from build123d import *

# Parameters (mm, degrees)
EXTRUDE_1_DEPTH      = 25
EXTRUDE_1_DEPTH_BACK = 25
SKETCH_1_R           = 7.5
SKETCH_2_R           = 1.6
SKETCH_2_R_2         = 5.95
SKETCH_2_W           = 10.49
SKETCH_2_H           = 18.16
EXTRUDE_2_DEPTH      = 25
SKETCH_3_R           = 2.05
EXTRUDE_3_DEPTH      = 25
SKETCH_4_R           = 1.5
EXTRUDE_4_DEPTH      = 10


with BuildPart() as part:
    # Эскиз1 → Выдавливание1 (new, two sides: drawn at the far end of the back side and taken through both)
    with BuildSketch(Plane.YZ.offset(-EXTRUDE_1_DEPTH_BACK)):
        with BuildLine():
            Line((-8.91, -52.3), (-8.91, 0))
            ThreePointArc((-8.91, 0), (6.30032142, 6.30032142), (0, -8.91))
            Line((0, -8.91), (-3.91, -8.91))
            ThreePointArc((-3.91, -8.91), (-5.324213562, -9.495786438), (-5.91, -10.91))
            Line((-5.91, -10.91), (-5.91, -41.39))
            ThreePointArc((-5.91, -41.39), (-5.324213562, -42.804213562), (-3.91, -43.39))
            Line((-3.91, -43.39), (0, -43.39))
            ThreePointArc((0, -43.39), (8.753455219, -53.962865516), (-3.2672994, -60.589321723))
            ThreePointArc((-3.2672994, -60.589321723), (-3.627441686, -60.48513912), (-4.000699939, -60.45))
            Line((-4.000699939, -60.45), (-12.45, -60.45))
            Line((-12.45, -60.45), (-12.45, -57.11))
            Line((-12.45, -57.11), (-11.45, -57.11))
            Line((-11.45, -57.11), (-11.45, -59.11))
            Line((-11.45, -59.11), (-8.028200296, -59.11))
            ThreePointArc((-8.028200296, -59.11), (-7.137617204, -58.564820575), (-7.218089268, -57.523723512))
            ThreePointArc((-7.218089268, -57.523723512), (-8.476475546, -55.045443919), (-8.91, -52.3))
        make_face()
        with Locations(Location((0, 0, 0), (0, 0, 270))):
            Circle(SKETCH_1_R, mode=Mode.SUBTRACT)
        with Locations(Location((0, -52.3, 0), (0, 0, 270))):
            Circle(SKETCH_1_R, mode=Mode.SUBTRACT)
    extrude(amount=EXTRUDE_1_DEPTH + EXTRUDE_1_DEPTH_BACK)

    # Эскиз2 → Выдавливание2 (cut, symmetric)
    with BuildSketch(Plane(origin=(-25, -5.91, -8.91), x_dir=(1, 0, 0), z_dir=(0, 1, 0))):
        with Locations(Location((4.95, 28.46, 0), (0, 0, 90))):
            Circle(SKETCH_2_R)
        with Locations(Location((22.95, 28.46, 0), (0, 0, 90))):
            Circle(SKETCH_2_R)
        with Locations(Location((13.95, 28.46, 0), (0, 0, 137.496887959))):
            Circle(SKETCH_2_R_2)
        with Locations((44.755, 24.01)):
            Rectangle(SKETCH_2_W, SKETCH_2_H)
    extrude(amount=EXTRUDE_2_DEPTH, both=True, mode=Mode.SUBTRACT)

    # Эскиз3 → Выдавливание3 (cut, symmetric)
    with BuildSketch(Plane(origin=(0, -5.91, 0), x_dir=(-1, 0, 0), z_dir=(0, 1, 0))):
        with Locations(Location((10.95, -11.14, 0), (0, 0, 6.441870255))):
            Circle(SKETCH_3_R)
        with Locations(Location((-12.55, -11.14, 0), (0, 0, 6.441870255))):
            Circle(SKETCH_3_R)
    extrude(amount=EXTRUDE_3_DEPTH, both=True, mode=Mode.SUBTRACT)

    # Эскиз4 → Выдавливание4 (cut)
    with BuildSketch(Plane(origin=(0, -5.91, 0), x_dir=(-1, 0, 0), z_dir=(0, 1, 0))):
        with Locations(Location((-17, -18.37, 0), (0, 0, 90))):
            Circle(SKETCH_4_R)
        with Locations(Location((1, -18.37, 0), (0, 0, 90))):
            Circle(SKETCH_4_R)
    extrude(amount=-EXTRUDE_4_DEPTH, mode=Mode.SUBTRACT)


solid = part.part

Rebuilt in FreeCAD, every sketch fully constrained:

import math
import FreeCAD as App
import Part
import Sketcher

doc = App.newDocument("Part")
params = doc.addObject("Spreadsheet::Sheet", "Params")
for row, (alias, value) in enumerate([
    ("sketch1_diameter", "15 mm"),
    ("sketch1_radius", "1 mm"),
    ("sketch1_radius2", "2 mm"),
    ("sketch1_width", "1 mm"),
    ("sketch1_height", "2 mm"),
    ("pad1_length", "25 mm"),
    ("pad1_length2", "25 mm"),
    ("sketch2_diameter", "3.2 mm"),
    ("sketch2_diameter2", "11.9 mm"),
    ("sketch2_width", "10.49 mm"),
    ("sketch2_height", "18.16 mm"),
    ("pocket1_length", "50 mm"),
    ("sketch3_diameter", "4.1 mm"),
    ("pocket2_length", "50 mm"),
    ("sketch4_diameter", "3 mm"),
    ("pocket3_length", "10 mm"),
], start=1):
    params.set(f"A{row}", alias)
    params.set(f"B{row}", "=" + value)
    params.setAlias(f"B{row}", alias)

body = doc.addObject("PartDesign::Body", "Body")

# Sketch on YZ plane
sketch1 = body.newObject("Sketcher::SketchObject", "Sketch")
sketch1.AttachmentSupport = (doc.getObject("YZ_Plane"), [""])
sketch1.MapMode = "FlatFace"
sketch1.addGeometry([
    Part.LineSegment(App.Vector(-8.9, 0, 0), App.Vector(-8.9, -52.3, 0)),  # 0
    Part.ArcOfCircle(Part.Circle(App.Vector(0, -52.3, 0), App.Vector(0, 0, 1), 8.9), math.radians(-180), math.radians(-144)),  # 1
    Part.ArcOfCircle(Part.Circle(App.Vector(-8, -58.1, 0), App.Vector(0, 0, 1), 1), math.radians(-90), math.radians(36)),  # 2
    Part.LineSegment(App.Vector(-8, -59.1, 0), App.Vector(-11.4, -59.1, 0)),  # 3
    Part.LineSegment(App.Vector(-11.4, -59.1, 0), App.Vector(-11.4, -57.1, 0)),  # 4
    Part.LineSegment(App.Vector(-11.4, -57.1, 0), App.Vector(-12.4, -57.1, 0)),  # 5
    Part.LineSegment(App.Vector(-12.4, -57.1, 0), App.Vector(-12.4, -60.5, 0)),  # 6
    Part.LineSegment(App.Vector(-12.4, -60.5, 0), App.Vector(-4, -60.5, 0)),  # 7
    Part.ArcOfCircle(Part.Circle(App.Vector(-4, -62.4, 0), App.Vector(0, 0, 1), 2), math.radians(68), math.radians(90)),  # 8
    Part.ArcOfCircle(Part.Circle(App.Vector(0, -52.3, 0), App.Vector(0, 0, 1), 8.9), math.radians(-112), math.radians(90)),  # 9
    Part.LineSegment(App.Vector(0, -43.4, 0), App.Vector(-3.9, -43.4, 0)),  # 10
    Part.ArcOfCircle(Part.Circle(App.Vector(-3.9, -41.4, 0), App.Vector(0, 0, 1), 2), math.radians(-180), math.radians(-90)),  # 11
    Part.LineSegment(App.Vector(-5.9, -41.4, 0), App.Vector(-5.9, -10.9, 0)),  # 12
    Part.ArcOfCircle(Part.Circle(App.Vector(-3.9, -10.9, 0), App.Vector(0, 0, 1), 2), math.radians(90), math.radians(180)),  # 13
    Part.LineSegment(App.Vector(-3.9, -8.9, 0), App.Vector(0, -8.9, 0)),  # 14
    Part.ArcOfCircle(Part.Circle(App.Vector(0, 0, 0), App.Vector(0, 0, 1), 8.9), math.radians(-90), math.radians(180)),  # 15
    Part.Circle(App.Vector(0, -52.3, 0), App.Vector(0, 0, 1), 7.5),  # 16
    Part.Circle(App.Vector(0, 0, 0), App.Vector(0, 0, 1), 7.5),  # 17
], False)
sketch1.addConstraint([
    Sketcher.Constraint("Tangent", 0, 2, 1, 1),
    Sketcher.Constraint("Tangent", 1, 2, 2, 2),
    Sketcher.Constraint("Tangent", 2, 1, 3, 1),
    Sketcher.Constraint("Coincident", 3, 2, 4, 1),
    Sketcher.Constraint("Coincident", 4, 2, 5, 1),
    Sketcher.Constraint("Coincident", 5, 2, 6, 1),
    Sketcher.Constraint("Coincident", 6, 2, 7, 1),
    Sketcher.Constraint("Tangent", 7, 2, 8, 2),
    Sketcher.Constraint("Tangent", 8, 1, 9, 1),
    Sketcher.Constraint("Tangent", 9, 2, 10, 1),
    Sketcher.Constraint("Tangent", 10, 2, 11, 2),
    Sketcher.Constraint("Tangent", 11, 1, 12, 1),
    Sketcher.Constraint("Tangent", 12, 2, 13, 2),
    Sketcher.Constraint("Tangent", 13, 1, 14, 1),
    Sketcher.Constraint("Tangent", 14, 2, 15, 1),
    Sketcher.Constraint("Tangent", 15, 2, 0, 1),
    Sketcher.Constraint("Vertical", 0),
    Sketcher.Constraint("Horizontal", 3),
    Sketcher.Constraint("Vertical", 4),
    Sketcher.Constraint("Horizontal", 5),
    Sketcher.Constraint("Vertical", 6),
    Sketcher.Constraint("Horizontal", 7),
    Sketcher.Constraint("Horizontal", 10),
    Sketcher.Constraint("Vertical", 12),
    Sketcher.Constraint("Horizontal", 14),
    Sketcher.Constraint("Coincident", 15, 3, -1, 1),
    Sketcher.Constraint("Coincident", 17, 3, -1, 1),
    Sketcher.Constraint("Coincident", 9, 3, 1, 3),
    Sketcher.Constraint("Coincident", 16, 3, 1, 3),
    Sketcher.Constraint("Equal", 1, 9),
    Sketcher.Constraint("Equal", 8, 11),
    Sketcher.Constraint("Equal", 11, 13),
    Sketcher.Constraint("Equal", 9, 15),
    Sketcher.Constraint("Equal", 16, 17),
    Sketcher.Constraint("Diameter", 16, 15.0),
    Sketcher.Constraint("Radius", 2, 1.0),
    Sketcher.Constraint("Radius", 8, 2.0),
    Sketcher.Constraint("DistanceX", 5, 2, 5, 1, 1.0),
    Sketcher.Constraint("DistanceY", 4, 1, 4, 2, 2.0),
    Sketcher.Constraint("Radius", 1, 8.91),
    Sketcher.Constraint("DistanceY", 0, 2, 0, 1, 52.3),
    Sketcher.Constraint("DistanceX", 0, 2, 11, 1, 3.0),
    Sketcher.Constraint("DistanceY", 6, 2, 6, 1, 3.34),
    Sketcher.Constraint("DistanceY", 2, 3, 13, 3, 47.2),
    Sketcher.Constraint("DistanceX", 3, 2, -1, 1, 11.45),
])
sketch1.setExpression("Constraints[34]", "Params.sketch1_diameter")
sketch1.setExpression("Constraints[35]", "Params.sketch1_radius")
sketch1.setExpression("Constraints[36]", "Params.sketch1_radius2")
sketch1.setExpression("Constraints[37]", "Params.sketch1_width")
sketch1.setExpression("Constraints[38]", "Params.sketch1_height")
pad1 = body.newObject("PartDesign::Pad", "Pad")
pad1.Profile = sketch1
pad1.Type = "TwoLengths"
pad1.setExpression("Length", "Params.pad1_length")
pad1.setExpression("Length2", "Params.pad1_length2")

# Sketch on XZ plane
sketch2 = body.newObject("Sketcher::SketchObject", "Sketch001")
sketch2.AttachmentSupport = (doc.getObject("XZ_Plane"), [""])
sketch2.MapMode = "FlatFace"
sketch2.AttachmentOffset = App.Placement(App.Vector(0, 0, 5.91), App.Rotation())
sketch2.addGeometry([
    Part.Circle(App.Vector(-20.1, -37.4, 0), App.Vector(0, 0, 1), 1.6),  # 0
    Part.Circle(App.Vector(-2, -37.4, 0), App.Vector(0, 0, 1), 1.6),  # 1
    Part.Circle(App.Vector(-11.1, -37.4, 0), App.Vector(0, 0, 1), 6),  # 2
    Part.LineSegment(App.Vector(14.5, -42, 0), App.Vector(14.5, -23.8, 0)),  # 3
    Part.LineSegment(App.Vector(14.5, -23.8, 0), App.Vector(25, -23.8, 0)),  # 4
    Part.LineSegment(App.Vector(25, -23.8, 0), App.Vector(25, -42, 0)),  # 5
    Part.LineSegment(App.Vector(25, -42, 0), App.Vector(14.5, -42, 0)),  # 6
], False)
sketch2.addConstraint([
    Sketcher.Constraint("Coincident", 3, 2, 4, 1),
    Sketcher.Constraint("Coincident", 4, 2, 5, 1),
    Sketcher.Constraint("Coincident", 5, 2, 6, 1),
    Sketcher.Constraint("Coincident", 6, 2, 3, 1),
    Sketcher.Constraint("Vertical", 3),
    Sketcher.Constraint("Horizontal", 4),
    Sketcher.Constraint("Vertical", 5),
    Sketcher.Constraint("Horizontal", 6),
    Sketcher.Constraint("Equal", 0, 1),
    Sketcher.Constraint("Horizontal", 0, 3, 1, 3),
    Sketcher.Constraint("Horizontal", 1, 3, 2, 3),
    Sketcher.Constraint("Diameter", 0, 3.2),
    Sketcher.Constraint("Diameter", 2, 11.9),
    Sketcher.Constraint("DistanceX", -1, 1, 4, 2, 25.0),
    Sketcher.Constraint("DistanceY", 5, 2, -1, 1, 42.0),
    Sketcher.Constraint("DistanceX", 0, 3, 1, 3, 18.0),
    Sketcher.Constraint("DistanceX", 0, 3, 2, 3, 9.0),
    Sketcher.Constraint("DistanceX", 4, 1, 4, 2, 10.49),
    Sketcher.Constraint("DistanceY", 3, 1, 3, 2, 18.16),
    Sketcher.Constraint("DistanceX", 0, 3, -1, 1, 20.05),
    Sketcher.Constraint("DistanceY", 0, 3, -1, 1, 37.37),
])
sketch2.setExpression("Constraints[11]", "Params.sketch2_diameter")
sketch2.setExpression("Constraints[12]", "Params.sketch2_diameter2")
sketch2.setExpression("Constraints[17]", "Params.sketch2_width")
sketch2.setExpression("Constraints[18]", "Params.sketch2_height")
pocket1 = body.newObject("PartDesign::Pocket", "Pocket")
pocket1.Profile = sketch2
pocket1.setExpression("Length", "Params.pocket1_length")
pocket1.Midplane = True

# Sketch on XZ plane
sketch3 = body.newObject("Sketcher::SketchObject", "Sketch002")
sketch3.AttachmentSupport = (doc.getObject("XZ_Plane"), [""])
sketch3.MapMode = "FlatFace"
sketch3.AttachmentOffset = App.Placement(App.Vector(0, 0, 5.91), App.Rotation())
sketch3.addGeometry([
    Part.Circle(App.Vector(-10.9, -11.1, 0), App.Vector(0, 0, 1), 2),
    Part.Circle(App.Vector(12.6, -11.1, 0), App.Vector(0, 0, 1), 2),
], False)
sketch3.addConstraint([
    Sketcher.Constraint("Equal", 0, 1),
    Sketcher.Constraint("Horizontal", 0, 3, 1, 3),
    Sketcher.Constraint("Diameter", 0, 4.1),
    Sketcher.Constraint("DistanceX", 0, 3, 1, 3, 23.5),
    Sketcher.Constraint("DistanceX", 0, 3, -1, 1, 10.95),
    Sketcher.Constraint("DistanceY", 0, 3, -1, 1, 11.14),
])
sketch3.setExpression("Constraints[2]", "Params.sketch3_diameter")
pocket2 = body.newObject("PartDesign::Pocket", "Pocket001")
pocket2.Profile = sketch3
pocket2.setExpression("Length", "Params.pocket2_length")
pocket2.Midplane = True

# Sketch on XZ plane
sketch4 = body.newObject("Sketcher::SketchObject", "Sketch003")
sketch4.AttachmentSupport = (doc.getObject("XZ_Plane"), [""])
sketch4.MapMode = "FlatFace"
sketch4.AttachmentOffset = App.Placement(App.Vector(0, 0, 5.91), App.Rotation())
sketch4.addGeometry([
    Part.Circle(App.Vector(17, -18.4, 0), App.Vector(0, 0, 1), 1.5),
    Part.Circle(App.Vector(-1, -18.4, 0), App.Vector(0, 0, 1), 1.5),
], False)
sketch4.addConstraint([
    Sketcher.Constraint("Equal", 0, 1),
    Sketcher.Constraint("Horizontal", 0, 3, 1, 3),
    Sketcher.Constraint("Diameter", 0, 3.0),
    Sketcher.Constraint("DistanceX", -1, 1, 0, 3, 17.0),
    Sketcher.Constraint("DistanceX", 1, 3, -1, 1, 1.0),
    Sketcher.Constraint("DistanceY", 0, 3, -1, 1, 18.37),
])
sketch4.setExpression("Constraints[2]", "Params.sketch4_diameter")
pocket3 = body.newObject("PartDesign::Pocket", "Pocket002")
pocket3.Profile = sketch4
pocket3.setExpression("Length", "Params.pocket3_length")
pocket3.Reversed = True

doc.recompute()
